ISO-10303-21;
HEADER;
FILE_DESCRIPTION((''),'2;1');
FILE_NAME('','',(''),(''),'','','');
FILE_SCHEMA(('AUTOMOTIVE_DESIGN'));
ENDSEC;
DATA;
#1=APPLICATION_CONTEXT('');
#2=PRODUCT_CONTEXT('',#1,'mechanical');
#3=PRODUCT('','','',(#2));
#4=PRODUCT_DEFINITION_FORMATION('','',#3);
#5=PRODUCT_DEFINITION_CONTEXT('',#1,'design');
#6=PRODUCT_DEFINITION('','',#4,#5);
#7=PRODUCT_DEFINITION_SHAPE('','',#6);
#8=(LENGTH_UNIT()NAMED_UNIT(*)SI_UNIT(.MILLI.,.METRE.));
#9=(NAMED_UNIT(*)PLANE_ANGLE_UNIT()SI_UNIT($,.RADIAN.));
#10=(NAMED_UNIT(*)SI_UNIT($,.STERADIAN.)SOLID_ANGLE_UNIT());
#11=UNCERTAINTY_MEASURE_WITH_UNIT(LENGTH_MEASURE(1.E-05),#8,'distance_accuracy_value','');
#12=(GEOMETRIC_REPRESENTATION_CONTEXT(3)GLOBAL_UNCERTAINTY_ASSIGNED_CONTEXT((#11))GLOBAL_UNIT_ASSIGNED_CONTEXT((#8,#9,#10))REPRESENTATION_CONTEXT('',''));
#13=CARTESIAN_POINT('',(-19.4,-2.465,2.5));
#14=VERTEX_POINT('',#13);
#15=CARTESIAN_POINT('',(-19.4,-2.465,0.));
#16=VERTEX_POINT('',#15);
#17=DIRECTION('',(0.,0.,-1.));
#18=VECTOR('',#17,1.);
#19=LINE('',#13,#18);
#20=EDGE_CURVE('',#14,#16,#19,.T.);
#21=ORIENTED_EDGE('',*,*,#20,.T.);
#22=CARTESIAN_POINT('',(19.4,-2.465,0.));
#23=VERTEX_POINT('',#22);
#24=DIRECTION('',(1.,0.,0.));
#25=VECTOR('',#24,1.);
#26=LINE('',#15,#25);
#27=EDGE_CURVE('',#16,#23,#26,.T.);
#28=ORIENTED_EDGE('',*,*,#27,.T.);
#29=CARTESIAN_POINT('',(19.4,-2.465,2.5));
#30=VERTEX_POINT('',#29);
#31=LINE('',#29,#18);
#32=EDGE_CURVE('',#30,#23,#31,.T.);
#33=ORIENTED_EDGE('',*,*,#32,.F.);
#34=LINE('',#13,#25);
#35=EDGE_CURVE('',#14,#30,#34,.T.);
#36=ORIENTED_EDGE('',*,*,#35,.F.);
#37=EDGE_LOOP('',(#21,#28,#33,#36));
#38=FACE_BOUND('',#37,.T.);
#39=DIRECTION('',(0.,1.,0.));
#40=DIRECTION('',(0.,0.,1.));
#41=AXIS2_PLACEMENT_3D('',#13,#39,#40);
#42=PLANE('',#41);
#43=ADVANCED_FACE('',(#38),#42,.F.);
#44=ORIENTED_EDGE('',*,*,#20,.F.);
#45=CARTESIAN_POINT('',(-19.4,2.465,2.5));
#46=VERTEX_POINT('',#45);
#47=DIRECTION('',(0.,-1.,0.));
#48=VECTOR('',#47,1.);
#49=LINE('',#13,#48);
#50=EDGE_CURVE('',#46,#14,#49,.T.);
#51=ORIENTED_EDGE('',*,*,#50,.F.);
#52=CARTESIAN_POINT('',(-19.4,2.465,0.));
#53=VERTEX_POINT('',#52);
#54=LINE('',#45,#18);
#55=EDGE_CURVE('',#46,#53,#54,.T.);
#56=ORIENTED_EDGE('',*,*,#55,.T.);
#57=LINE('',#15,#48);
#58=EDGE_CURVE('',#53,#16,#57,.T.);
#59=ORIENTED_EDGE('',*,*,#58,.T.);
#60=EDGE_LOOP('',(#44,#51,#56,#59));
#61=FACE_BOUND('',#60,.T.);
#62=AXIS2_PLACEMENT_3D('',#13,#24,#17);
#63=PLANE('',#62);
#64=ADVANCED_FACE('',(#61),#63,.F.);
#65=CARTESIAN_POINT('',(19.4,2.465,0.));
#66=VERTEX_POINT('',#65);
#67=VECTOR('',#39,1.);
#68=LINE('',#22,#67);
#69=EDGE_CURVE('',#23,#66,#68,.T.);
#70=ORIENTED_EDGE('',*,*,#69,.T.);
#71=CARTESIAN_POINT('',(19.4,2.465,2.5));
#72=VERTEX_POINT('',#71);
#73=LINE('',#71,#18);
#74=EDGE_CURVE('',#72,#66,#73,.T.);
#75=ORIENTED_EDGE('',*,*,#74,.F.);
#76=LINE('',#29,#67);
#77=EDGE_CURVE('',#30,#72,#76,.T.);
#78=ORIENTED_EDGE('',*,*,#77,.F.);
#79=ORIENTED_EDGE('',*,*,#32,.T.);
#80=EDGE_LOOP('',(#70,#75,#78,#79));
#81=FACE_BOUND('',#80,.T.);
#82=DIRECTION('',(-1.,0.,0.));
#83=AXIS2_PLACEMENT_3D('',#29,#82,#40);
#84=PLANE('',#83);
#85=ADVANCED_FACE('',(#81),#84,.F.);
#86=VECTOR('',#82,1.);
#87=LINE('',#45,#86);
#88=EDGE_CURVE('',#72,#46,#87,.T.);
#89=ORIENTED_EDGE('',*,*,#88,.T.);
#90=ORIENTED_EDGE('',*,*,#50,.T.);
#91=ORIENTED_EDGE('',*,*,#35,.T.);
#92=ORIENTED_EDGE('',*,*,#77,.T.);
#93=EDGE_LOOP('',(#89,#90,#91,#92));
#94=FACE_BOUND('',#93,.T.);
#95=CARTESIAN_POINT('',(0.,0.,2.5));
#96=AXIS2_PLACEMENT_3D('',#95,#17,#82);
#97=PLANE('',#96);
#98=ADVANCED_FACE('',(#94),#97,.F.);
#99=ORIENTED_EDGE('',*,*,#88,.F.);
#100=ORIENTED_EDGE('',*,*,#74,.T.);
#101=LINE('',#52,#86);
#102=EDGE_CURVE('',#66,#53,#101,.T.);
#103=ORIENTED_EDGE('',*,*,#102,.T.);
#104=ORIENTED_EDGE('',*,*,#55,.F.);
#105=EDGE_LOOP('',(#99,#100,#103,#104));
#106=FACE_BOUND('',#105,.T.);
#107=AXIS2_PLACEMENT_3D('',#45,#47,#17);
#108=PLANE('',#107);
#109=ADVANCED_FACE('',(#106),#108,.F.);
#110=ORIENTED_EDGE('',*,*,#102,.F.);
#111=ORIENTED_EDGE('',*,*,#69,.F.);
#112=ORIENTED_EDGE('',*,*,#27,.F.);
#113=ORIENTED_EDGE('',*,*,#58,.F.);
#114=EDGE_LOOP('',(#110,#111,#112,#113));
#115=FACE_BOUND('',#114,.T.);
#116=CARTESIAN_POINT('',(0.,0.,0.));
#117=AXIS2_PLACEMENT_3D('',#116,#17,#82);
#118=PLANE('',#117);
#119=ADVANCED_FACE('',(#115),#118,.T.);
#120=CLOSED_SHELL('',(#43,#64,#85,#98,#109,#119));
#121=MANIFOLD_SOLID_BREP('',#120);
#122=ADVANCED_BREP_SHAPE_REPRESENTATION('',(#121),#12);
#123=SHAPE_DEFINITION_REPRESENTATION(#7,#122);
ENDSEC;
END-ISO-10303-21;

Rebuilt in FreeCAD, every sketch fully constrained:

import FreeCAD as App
import Part
import Sketcher

V = App.Vector
Q = App.Units.Quantity


def add_polygon(sketch, points):
    """Adds a closed chain of lines whose ends are joined by coincident constraints."""
    first, n = sketch.GeometryCount, len(points)
    for a, b in zip(points, points[1:] + points[:1]):
        sketch.addGeometry(Part.LineSegment(App.Vector(*a, 0), App.Vector(*b, 0)), False)
    for i in range(n):
        sketch.addConstraint(Sketcher.Constraint("Coincident", first + i, 2, first + (i + 1) % n, 1))

doc = App.newDocument("Part")
body = doc.addObject("PartDesign::Body", "Body")

# Sketch on XY plane
sketch1 = body.newObject("Sketcher::SketchObject", "Sketch")
sketch1.AttachmentSupport = (doc.getObject("XY_Plane"), [""])
sketch1.MapMode = "FlatFace"
add_polygon(sketch1, [(-19.4, 2.5), (-19.4, -2.5), (19.4, -2.5), (19.4, 2.5)])  # lines 0-3
sketch1.addConstraint([
    Sketcher.Constraint("Vertical", 0),
    Sketcher.Constraint("Horizontal", 1),
    Sketcher.Constraint("Vertical", 2),
    Sketcher.Constraint("Horizontal", 3),
    Sketcher.Constraint("Symmetric", 0, 2, 2, 2, -1, 1),
    Sketcher.Constraint("DistanceX", 1, 1, 1, 2, Q("38.8 mm")),
    Sketcher.Constraint("DistanceY", 0, 2, 0, 1, Q("4.93 mm")),
])
pad1 = body.newObject("PartDesign::Pad", "Pad")
pad1.Profile = sketch1
pad1.Length = 2.5

doc.recompute()
